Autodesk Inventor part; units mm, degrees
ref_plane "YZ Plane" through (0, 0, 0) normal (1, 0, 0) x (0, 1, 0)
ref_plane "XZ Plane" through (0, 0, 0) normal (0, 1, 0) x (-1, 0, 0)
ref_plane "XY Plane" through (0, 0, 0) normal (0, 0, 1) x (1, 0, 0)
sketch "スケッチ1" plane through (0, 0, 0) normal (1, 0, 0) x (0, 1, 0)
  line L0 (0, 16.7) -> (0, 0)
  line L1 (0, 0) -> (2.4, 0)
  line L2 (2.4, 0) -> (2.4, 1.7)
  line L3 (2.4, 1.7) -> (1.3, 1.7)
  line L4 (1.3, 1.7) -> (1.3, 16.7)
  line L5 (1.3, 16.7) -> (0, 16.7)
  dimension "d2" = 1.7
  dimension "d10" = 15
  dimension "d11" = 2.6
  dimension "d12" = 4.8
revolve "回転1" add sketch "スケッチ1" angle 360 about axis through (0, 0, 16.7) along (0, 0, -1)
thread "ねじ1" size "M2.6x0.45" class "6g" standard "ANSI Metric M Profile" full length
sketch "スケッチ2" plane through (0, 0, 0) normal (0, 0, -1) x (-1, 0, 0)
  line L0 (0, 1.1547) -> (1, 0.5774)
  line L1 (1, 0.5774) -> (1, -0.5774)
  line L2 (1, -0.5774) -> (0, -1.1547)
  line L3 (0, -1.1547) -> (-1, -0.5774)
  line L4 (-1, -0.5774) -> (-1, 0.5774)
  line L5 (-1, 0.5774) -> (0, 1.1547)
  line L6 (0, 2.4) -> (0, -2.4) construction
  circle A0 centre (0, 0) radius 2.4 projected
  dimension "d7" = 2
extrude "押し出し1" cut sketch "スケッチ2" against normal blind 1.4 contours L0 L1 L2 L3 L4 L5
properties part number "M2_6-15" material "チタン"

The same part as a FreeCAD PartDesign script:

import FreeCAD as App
import Part
import Sketcher

doc = App.newDocument("Part")
body = doc.addObject("PartDesign::Body", "Body")

sketch1 = body.newObject("Sketcher::SketchObject", "Sketch")
sketch1.AttachmentSupport = (doc.getObject("YZ_Plane"), [""])
sketch1.MapMode = "FlatFace"
sketch1.addGeometry([
    Part.LineSegment(App.Vector(1.3, 16.7, 0), App.Vector(0, 16.7, 0)),
    Part.LineSegment(App.Vector(0, 16.7, 0), App.Vector(0, 0, 0)),
    Part.LineSegment(App.Vector(0, 0, 0), App.Vector(2.4, 0, 0)),
    Part.LineSegment(App.Vector(2.4, 0, 0), App.Vector(2.4, 1.7, 0)),
    Part.LineSegment(App.Vector(2.4, 1.7, 0), App.Vector(1.3, 1.7, 0)),
    Part.LineSegment(App.Vector(1.3, 1.7, 0), App.Vector(1.3, 16.7, 0)),
], False)
sketch1.addConstraint([
    Sketcher.Constraint("Coincident", 0, 2, 1, 1),
    Sketcher.Constraint("Coincident", 1, 2, 2, 1),
    Sketcher.Constraint("Coincident", 2, 2, 3, 1),
    Sketcher.Constraint("Coincident", 3, 2, 4, 1),
    Sketcher.Constraint("Coincident", 4, 2, 5, 1),
    Sketcher.Constraint("Coincident", 5, 2, 0, 1),
    Sketcher.Constraint("Horizontal", 0),
    Sketcher.Constraint("Vertical", 1),
    Sketcher.Constraint("Horizontal", 2),
    Sketcher.Constraint("Vertical", 3),
    Sketcher.Constraint("Horizontal", 4),
    Sketcher.Constraint("Vertical", 5),
    Sketcher.Constraint("Coincident", 1, 2, -1, 1),
    Sketcher.Constraint("DistanceY", 5, 1, 5, 2, 15.0),
    Sketcher.Constraint("DistanceY", 3, 1, 3, 2, 1.7),
    Sketcher.Constraint("DistanceX", 0, 2, 0, 1, 1.3),
    Sketcher.Constraint("DistanceX", 2, 1, 2, 2, 2.4),
])
revolution = body.newObject("PartDesign::Revolution", "Revolution")
revolution.Profile = sketch1
revolution.ReferenceAxis = (sketch1, ["V_Axis"])
revolution.Angle = 360

sketch2 = body.newObject("Sketcher::SketchObject", "Sketch001")
sketch2.AttachmentSupport = (doc.getObject("XY_Plane"), [""])
sketch2.MapMode = "FlatFace"
sketch2.addGeometry([
    Part.LineSegment(App.Vector(-1, 0.6, 0), App.Vector(0, 1.2, 0)),
    Part.LineSegment(App.Vector(0, 1.2, 0), App.Vector(1, 0.6, 0)),
    Part.LineSegment(App.Vector(1, 0.6, 0), App.Vector(1, -0.6, 0)),
    Part.LineSegment(App.Vector(1, -0.6, 0), App.Vector(0, -1.2, 0)),
    Part.LineSegment(App.Vector(0, -1.2, 0), App.Vector(-1, -0.6, 0)),
    Part.LineSegment(App.Vector(-1, -0.6, 0), App.Vector(-1, 0.6, 0)),
], False)
sketch2.addConstraint([
    Sketcher.Constraint("Coincident", 0, 2, 1, 1),
    Sketcher.Constraint("Coincident", 1, 2, 2, 1),
    Sketcher.Constraint("Coincident", 2, 2, 3, 1),
    Sketcher.Constraint("Coincident", 3, 2, 4, 1),
    Sketcher.Constraint("Coincident", 4, 2, 5, 1),
    Sketcher.Constraint("Coincident", 5, 2, 0, 1),
    Sketcher.Constraint("Vertical", 2),
    Sketcher.Constraint("Vertical", 5),
    Sketcher.Constraint("Symmetric", 0, 2, 3, 2, -1, 1),
    Sketcher.Constraint("Symmetric", 1, 2, 4, 2, -1, 1),
    Sketcher.Constraint("PointOnObject", 0, 2, -2),
    Sketcher.Constraint("Parallel", 0, 3),
    Sketcher.Constraint("Horizontal", 2, 2, 4, 2),
    Sketcher.Constraint("DistanceX", 4, 2, 2, 2, 2.0),
    Sketcher.Constraint("DistanceY", 2, 2, 2, 1, 1.1548),
    Sketcher.Constraint("DistanceY", 2, 2, 0, 2, 1.732),
])
pocket1 = body.newObject("PartDesign::Pocket", "Pocket")
pocket1.Profile = sketch2
pocket1.Length = 1.4
pocket1.Reversed = True

doc.recompute()
